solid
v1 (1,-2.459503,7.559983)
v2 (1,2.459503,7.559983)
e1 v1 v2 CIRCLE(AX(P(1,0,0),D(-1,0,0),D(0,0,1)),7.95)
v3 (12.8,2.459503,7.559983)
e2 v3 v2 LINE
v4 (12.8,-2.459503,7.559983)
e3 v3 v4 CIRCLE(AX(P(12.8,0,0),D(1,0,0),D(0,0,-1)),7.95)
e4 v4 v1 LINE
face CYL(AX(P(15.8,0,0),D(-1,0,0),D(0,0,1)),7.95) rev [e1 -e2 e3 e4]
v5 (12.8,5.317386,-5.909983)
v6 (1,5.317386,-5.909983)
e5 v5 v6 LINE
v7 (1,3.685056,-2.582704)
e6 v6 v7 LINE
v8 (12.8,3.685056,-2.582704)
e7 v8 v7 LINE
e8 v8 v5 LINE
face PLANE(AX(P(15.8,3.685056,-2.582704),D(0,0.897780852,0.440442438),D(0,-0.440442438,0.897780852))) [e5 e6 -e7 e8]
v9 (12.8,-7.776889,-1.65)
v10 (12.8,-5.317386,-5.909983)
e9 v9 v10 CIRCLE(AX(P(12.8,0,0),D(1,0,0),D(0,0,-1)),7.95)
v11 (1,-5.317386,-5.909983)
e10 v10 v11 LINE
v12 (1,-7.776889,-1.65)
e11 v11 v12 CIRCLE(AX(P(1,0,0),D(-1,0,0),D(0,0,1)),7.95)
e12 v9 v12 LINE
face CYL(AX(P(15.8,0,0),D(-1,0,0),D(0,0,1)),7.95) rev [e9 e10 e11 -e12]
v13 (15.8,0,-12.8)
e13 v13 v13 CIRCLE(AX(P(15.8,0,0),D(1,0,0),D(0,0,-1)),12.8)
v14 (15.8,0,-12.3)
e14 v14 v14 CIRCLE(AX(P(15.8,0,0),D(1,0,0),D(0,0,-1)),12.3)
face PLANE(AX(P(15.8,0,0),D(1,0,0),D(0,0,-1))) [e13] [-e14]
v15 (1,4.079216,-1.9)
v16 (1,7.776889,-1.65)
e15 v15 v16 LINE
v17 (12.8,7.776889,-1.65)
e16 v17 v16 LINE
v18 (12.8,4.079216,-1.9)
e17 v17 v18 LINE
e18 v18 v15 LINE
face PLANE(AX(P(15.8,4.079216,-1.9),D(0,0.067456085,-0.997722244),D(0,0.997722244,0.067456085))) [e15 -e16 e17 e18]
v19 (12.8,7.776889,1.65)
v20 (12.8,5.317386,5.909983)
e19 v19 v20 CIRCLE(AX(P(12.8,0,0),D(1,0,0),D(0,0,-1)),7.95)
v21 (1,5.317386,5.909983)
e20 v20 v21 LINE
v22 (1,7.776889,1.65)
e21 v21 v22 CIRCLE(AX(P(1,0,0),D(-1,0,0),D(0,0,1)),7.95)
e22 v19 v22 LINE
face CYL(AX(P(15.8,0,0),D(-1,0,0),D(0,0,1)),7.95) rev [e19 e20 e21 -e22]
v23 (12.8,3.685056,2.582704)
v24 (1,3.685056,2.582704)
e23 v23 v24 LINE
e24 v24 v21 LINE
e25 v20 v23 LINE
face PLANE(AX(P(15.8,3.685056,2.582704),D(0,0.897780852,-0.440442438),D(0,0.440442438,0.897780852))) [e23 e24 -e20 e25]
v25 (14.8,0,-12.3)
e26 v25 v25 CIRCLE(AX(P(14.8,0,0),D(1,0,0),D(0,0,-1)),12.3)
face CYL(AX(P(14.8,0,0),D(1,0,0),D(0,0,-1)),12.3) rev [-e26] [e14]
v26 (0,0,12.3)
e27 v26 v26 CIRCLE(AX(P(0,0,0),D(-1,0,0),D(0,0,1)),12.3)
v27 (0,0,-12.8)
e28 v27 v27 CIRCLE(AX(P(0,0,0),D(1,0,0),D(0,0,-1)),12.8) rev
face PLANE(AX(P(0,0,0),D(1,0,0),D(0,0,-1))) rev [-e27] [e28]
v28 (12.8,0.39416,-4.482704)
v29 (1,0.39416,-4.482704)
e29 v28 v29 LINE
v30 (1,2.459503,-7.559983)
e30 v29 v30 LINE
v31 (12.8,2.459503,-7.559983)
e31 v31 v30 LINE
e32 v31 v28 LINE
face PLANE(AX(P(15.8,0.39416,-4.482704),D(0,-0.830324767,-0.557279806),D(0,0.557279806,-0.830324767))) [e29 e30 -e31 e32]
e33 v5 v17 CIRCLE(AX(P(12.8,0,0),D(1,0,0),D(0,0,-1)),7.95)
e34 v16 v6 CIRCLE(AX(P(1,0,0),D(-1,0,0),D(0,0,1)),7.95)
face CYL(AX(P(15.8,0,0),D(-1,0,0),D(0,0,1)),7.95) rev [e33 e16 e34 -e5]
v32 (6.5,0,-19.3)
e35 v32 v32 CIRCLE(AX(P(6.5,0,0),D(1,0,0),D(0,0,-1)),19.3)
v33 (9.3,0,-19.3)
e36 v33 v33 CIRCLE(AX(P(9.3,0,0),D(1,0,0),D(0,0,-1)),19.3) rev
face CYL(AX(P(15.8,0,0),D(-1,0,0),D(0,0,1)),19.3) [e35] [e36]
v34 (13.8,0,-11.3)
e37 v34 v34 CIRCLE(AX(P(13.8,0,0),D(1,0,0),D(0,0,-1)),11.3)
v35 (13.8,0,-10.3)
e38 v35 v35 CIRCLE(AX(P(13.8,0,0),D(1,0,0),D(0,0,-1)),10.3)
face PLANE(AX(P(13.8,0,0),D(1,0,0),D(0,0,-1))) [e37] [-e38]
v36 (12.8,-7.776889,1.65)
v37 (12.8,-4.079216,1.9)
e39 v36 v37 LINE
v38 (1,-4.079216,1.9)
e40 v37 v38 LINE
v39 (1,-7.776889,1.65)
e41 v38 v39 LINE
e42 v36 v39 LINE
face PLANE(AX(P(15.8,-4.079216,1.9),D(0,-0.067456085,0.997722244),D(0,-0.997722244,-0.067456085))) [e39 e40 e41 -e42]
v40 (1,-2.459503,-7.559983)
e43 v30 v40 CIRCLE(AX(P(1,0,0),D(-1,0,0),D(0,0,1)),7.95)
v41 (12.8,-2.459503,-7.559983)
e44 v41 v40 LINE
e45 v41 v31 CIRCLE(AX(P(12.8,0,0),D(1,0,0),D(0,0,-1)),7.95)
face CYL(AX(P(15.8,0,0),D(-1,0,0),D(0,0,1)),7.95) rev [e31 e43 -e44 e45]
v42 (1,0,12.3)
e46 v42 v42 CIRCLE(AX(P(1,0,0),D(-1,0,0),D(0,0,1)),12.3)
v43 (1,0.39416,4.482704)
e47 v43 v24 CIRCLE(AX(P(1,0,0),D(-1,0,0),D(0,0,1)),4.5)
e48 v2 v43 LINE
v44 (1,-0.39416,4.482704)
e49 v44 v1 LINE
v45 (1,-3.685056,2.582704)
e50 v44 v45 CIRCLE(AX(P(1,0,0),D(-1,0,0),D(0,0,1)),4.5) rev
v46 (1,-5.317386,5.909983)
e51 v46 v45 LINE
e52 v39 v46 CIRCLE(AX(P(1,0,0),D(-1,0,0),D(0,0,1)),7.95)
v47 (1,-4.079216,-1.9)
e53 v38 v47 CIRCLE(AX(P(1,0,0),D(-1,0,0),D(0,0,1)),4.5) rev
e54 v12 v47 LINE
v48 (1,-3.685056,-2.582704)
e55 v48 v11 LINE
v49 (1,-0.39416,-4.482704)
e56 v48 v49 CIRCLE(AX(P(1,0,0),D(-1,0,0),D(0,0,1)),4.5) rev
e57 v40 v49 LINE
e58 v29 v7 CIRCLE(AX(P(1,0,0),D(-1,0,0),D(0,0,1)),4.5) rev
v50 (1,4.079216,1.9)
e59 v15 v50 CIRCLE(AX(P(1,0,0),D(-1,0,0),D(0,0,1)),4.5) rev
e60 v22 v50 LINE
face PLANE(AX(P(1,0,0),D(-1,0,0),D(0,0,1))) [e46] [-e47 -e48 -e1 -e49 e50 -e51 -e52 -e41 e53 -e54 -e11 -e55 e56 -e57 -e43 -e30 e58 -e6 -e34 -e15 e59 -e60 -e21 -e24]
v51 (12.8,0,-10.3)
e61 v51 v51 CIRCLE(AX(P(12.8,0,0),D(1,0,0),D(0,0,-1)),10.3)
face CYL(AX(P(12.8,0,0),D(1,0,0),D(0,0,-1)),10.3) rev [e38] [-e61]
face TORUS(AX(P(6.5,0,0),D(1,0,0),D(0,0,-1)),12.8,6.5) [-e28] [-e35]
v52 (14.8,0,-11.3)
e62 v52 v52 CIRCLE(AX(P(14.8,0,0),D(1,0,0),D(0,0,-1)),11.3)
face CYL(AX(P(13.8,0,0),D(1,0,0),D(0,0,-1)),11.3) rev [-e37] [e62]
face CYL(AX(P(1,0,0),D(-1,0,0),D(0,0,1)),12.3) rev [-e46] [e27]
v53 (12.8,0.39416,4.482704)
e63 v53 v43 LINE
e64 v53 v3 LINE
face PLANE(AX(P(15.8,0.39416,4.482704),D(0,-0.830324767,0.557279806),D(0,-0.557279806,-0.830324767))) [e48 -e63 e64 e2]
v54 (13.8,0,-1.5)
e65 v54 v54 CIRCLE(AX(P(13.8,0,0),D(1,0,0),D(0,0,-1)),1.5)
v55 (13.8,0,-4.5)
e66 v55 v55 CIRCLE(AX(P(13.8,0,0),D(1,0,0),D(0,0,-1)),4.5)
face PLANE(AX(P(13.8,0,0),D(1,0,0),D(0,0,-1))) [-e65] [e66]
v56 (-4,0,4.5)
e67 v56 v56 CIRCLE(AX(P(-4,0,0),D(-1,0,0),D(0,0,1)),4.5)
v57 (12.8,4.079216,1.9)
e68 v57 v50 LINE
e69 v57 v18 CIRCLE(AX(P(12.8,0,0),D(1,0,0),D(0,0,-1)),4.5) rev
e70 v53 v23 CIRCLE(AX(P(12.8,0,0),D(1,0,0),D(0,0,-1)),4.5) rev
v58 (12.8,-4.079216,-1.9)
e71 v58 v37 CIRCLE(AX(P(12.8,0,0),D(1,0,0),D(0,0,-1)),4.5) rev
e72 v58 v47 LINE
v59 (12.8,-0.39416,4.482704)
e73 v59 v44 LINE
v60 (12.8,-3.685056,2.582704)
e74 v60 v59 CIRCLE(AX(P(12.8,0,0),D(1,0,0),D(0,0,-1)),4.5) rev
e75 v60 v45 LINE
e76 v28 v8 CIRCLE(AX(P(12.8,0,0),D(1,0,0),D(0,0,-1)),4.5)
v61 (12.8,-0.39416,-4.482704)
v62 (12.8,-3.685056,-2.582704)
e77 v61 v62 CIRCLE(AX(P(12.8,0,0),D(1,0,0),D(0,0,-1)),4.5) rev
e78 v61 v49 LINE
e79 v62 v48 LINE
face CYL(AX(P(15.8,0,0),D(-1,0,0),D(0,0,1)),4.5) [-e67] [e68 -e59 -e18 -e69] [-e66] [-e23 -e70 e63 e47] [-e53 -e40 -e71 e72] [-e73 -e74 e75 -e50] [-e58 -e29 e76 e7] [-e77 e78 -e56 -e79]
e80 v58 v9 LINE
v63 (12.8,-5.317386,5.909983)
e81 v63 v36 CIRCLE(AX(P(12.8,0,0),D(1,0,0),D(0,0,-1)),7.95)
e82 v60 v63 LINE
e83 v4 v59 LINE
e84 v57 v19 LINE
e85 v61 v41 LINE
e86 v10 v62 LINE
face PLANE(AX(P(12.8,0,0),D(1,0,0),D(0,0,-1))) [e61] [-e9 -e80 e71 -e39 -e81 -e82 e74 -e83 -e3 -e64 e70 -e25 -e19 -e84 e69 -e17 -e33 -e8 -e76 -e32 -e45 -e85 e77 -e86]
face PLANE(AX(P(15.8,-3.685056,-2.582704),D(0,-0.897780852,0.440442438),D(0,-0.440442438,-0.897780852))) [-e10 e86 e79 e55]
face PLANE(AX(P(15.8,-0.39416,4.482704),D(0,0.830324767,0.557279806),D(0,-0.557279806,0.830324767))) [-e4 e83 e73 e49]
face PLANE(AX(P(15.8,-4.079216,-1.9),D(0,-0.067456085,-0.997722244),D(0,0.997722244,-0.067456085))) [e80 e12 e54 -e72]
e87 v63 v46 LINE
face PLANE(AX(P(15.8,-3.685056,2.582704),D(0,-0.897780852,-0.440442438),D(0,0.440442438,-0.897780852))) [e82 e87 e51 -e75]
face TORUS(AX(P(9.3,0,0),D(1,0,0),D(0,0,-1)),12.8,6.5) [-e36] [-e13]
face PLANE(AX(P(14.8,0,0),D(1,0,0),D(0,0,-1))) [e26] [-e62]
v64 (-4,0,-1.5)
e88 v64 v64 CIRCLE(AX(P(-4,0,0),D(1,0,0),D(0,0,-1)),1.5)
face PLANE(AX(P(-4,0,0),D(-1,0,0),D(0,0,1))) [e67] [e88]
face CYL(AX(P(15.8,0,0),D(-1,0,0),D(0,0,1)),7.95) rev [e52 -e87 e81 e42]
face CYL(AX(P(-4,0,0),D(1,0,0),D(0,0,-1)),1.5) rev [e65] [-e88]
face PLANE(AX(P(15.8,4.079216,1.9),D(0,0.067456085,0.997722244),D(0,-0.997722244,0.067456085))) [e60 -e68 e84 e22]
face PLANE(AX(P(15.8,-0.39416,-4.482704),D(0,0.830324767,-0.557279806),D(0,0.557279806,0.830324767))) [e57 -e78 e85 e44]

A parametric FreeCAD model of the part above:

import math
import FreeCAD as App
import Part
import Sketcher

V = App.Vector
Q = App.Units.Quantity


def edges_at(feature, points):
    """Names of the edges that pass closest to the given points."""
    edges = feature.Shape.Edges
    near = lambda p: min(range(len(edges)), key=lambda i: edges[i].distToShape(Part.Vertex(*p))[0])
    return sorted({f"Edge{near(p) + 1}" for p in points})

doc = App.newDocument("Part")
body = doc.addObject("PartDesign::Body", "Body")

sketch1 = body.newObject("Sketcher::SketchObject", "Sketch")
sketch1.AttachmentSupport = (doc.getObject("YZ_Plane"), [""])
sketch1.MapMode = "FlatFace"
sketch1.addGeometry([
    Part.Circle(V(0, 0, 0), V(0, 0, 1), 19.3),
    Part.ArcOfCircle(Part.Circle(V(0, 0, 0), V(0, 0, 1), 4.5), math.radians(144.97), math.radians(155.03)),
    Part.LineSegment(V(-4.1, 1.9, 0), V(-7.8, 1.6, 0)),
    Part.ArcOfCircle(Part.Circle(V(0, 0, 0), V(0, 0, 1), 7.9), math.radians(132), math.radians(168)),
    Part.LineSegment(V(-5.3, 5.9, 0), V(-3.7, 2.6, 0)),
    Part.ArcOfCircle(Part.Circle(V(0, 0, 0), V(0, 0, 1), 4.5), math.radians(-155.03), math.radians(-144.97)),
    Part.LineSegment(V(-3.7, -2.6, 0), V(-5.3, -5.9, 0)),
    Part.ArcOfCircle(Part.Circle(V(0, 0, 0), V(0, 0, 1), 7.9), math.radians(-168), math.radians(-132)),
    Part.LineSegment(V(-7.8, -1.6, 0), V(-4.1, -1.9, 0)),
    Part.ArcOfCircle(Part.Circle(V(0, 0, 0), V(0, 0, 1), 4.5), math.radians(84.97), math.radians(95.03)),
    Part.LineSegment(V(-0.4, 4.5, 0), V(-2.5, 7.6, 0)),
    Part.ArcOfCircle(Part.Circle(V(0, 0, 0), V(0, 0, 1), 7.9), math.radians(72), math.radians(108)),
    Part.LineSegment(V(2.5, 7.6, 0), V(0.4, 4.5, 0)),
    Part.LineSegment(V(7.8, 1.6, 0), V(4.1, 1.9, 0)),
    Part.ArcOfCircle(Part.Circle(V(0, 0, 0), V(0, 0, 1), 4.5), math.radians(24.97), math.radians(35.03)),
    Part.LineSegment(V(3.7, 2.6, 0), V(5.3, 5.9, 0)),
    Part.ArcOfCircle(Part.Circle(V(0, 0, 0), V(0, 0, 1), 7.9), math.radians(12), math.radians(48)),
    Part.ArcOfCircle(Part.Circle(V(0, 0, 0), V(0, 0, 1), 4.5), math.radians(-95.03), math.radians(-84.97)),
    Part.LineSegment(V(0.4, -4.5, 0), V(2.5, -7.6, 0)),
    Part.ArcOfCircle(Part.Circle(V(0, 0, 0), V(0, 0, 1), 7.9), math.radians(-108), math.radians(-72)),
    Part.LineSegment(V(-2.5, -7.6, 0), V(-0.4, -4.5, 0)),
    Part.ArcOfCircle(Part.Circle(V(0, 0, 0), V(0, 0, 1), 4.5), math.radians(-35.03), math.radians(-24.97)),
    Part.LineSegment(V(4.1, -1.9, 0), V(7.8, -1.6, 0)),
    Part.ArcOfCircle(Part.Circle(V(0, 0, 0), V(0, 0, 1), 7.9), math.radians(-48), math.radians(-12)),
    Part.LineSegment(V(5.3, -5.9, 0), V(3.7, -2.6, 0)),
], False)
sketch1.addConstraint([
    Sketcher.Constraint("Coincident", 1, 2, 2, 1),
    Sketcher.Constraint("Coincident", 2, 2, 3, 2),
    Sketcher.Constraint("Coincident", 3, 1, 4, 1),
    Sketcher.Constraint("Coincident", 4, 2, 1, 1),
    Sketcher.Constraint("Coincident", 5, 2, 6, 1),
    Sketcher.Constraint("Coincident", 6, 2, 7, 2),
    Sketcher.Constraint("Coincident", 7, 1, 8, 1),
    Sketcher.Constraint("Coincident", 8, 2, 5, 1),
    Sketcher.Constraint("Coincident", 9, 2, 10, 1),
    Sketcher.Constraint("Coincident", 10, 2, 11, 2),
    Sketcher.Constraint("Coincident", 11, 1, 12, 1),
    Sketcher.Constraint("Coincident", 12, 2, 9, 1),
    Sketcher.Constraint("Coincident", 13, 2, 14, 1),
    Sketcher.Constraint("Coincident", 14, 2, 15, 1),
    Sketcher.Constraint("Coincident", 15, 2, 16, 2),
    Sketcher.Constraint("Coincident", 16, 1, 13, 1),
    Sketcher.Constraint("Coincident", 17, 2, 18, 1),
    Sketcher.Constraint("Coincident", 18, 2, 19, 2),
    Sketcher.Constraint("Coincident", 19, 1, 20, 1),
    Sketcher.Constraint("Coincident", 20, 2, 17, 1),
    Sketcher.Constraint("Coincident", 21, 2, 22, 1),
    Sketcher.Constraint("Coincident", 22, 2, 23, 2),
    Sketcher.Constraint("Coincident", 23, 1, 24, 1),
    Sketcher.Constraint("Coincident", 24, 2, 21, 1),
    Sketcher.Constraint("Coincident", 0, 3, -1, 1),
    Sketcher.Constraint("Coincident", 1, 3, -1, 1),
    Sketcher.Constraint("Coincident", 3, 3, -1, 1),
    Sketcher.Constraint("Coincident", 5, 3, -1, 1),
    Sketcher.Constraint("Coincident", 7, 3, -1, 1),
    Sketcher.Constraint("Coincident", 9, 3, -1, 1),
    Sketcher.Constraint("Coincident", 11, 3, -1, 1),
    Sketcher.Constraint("Coincident", 14, 3, -1, 1),
    Sketcher.Constraint("Coincident", 16, 3, -1, 1),
    Sketcher.Constraint("Coincident", 17, 3, -1, 1),
    Sketcher.Constraint("Coincident", 19, 3, -1, 1),
    Sketcher.Constraint("Coincident", 21, 3, -1, 1),
    Sketcher.Constraint("Coincident", 23, 3, -1, 1),
    Sketcher.Constraint("Equal", 1, 5),
    Sketcher.Constraint("Equal", 3, 7),
    Sketcher.Constraint("Equal", 5, 9),
    Sketcher.Constraint("Equal", 7, 11),
    Sketcher.Constraint("Equal", 9, 14),
    Sketcher.Constraint("Equal", 11, 16),
    Sketcher.Constraint("Equal", 14, 17),
    Sketcher.Constraint("Equal", 16, 19),
    Sketcher.Constraint("Equal", 17, 21),
    Sketcher.Constraint("Equal", 19, 23),
    Sketcher.Constraint("Parallel", 8, 13),
    Sketcher.Constraint("Parallel", 6, 15),
    Sketcher.Constraint("Parallel", 10, 18),
    Sketcher.Constraint("Parallel", 12, 20),
    Sketcher.Constraint("Parallel", 2, 22),
    Sketcher.Constraint("Parallel", 4, 24),
    Sketcher.Constraint("Horizontal", 10, 2, 11, 1),
    Sketcher.Constraint("Horizontal", 9, 2, 12, 2),
    Sketcher.Constraint("Horizontal", 1, 2, 13, 2),
    Sketcher.Constraint("Horizontal", 4, 2, 14, 2),
    Sketcher.Constraint("Horizontal", 3, 1, 15, 2),
    Sketcher.Constraint("Horizontal", 2, 2, 16, 1),
    Sketcher.Constraint("Horizontal", 18, 2, 19, 1),
    Sketcher.Constraint("Horizontal", 8, 2, 21, 2),
    Sketcher.Constraint("Horizontal", 6, 2, 23, 1),
    Sketcher.Constraint("Vertical", 4, 2, 5, 2),
    Sketcher.Constraint("Vertical", 2, 2, 7, 1),
    Sketcher.Constraint("Vertical", 12, 2, 17, 2),
    Sketcher.Constraint("Equal", 2, 4),
    Sketcher.Constraint("Equal", 8, 10),
    Sketcher.Constraint("Diameter", 0, Q("38.6 mm")),
    Sketcher.Constraint("Radius", 1, Q("4.5 mm")),
    Sketcher.Constraint("Radius", 3, Q("7.95 mm")),
    Sketcher.Constraint("DistanceY", -1, 1, 1, 2, Q("1.9 mm")),
    Sketcher.Constraint("DistanceY", 7, 1, 2, 2, Q("3.3 mm")),
    Sketcher.Constraint("DistanceY", 4, 2, 9, 2, Q("1.9 mm")),
    Sketcher.Constraint("DistanceY", 3, 1, 10, 2, Q("1.65 mm")),
])
pad1 = body.newObject("PartDesign::Pad", "Pad")
pad1.Profile = sketch1
pad1.Length = 15.8

sketch2 = body.newObject("Sketcher::SketchObject", "Sketch001")
sketch2.AttachmentSupport = (doc.getObject("YZ_Plane"), [""])
sketch2.MapMode = "FlatFace"
sketch2.AttachmentOffset = App.Placement(V(0, 0, 15.8), App.Rotation())
sketch2.addGeometry(Part.Circle(V(0, 0, 0), V(0, 0, 1), 12), False)
sketch2.addConstraint([
    Sketcher.Constraint("Coincident", 0, 3, -1, 1),
    Sketcher.Constraint("Diameter", 0, Q("24.6 mm")),
])
pocket1 = body.newObject("PartDesign::Pocket", "Pocket")
pocket1.Profile = sketch2
pocket1.Length = 1

sketch3 = body.newObject("Sketcher::SketchObject", "Sketch002")
sketch3.AttachmentSupport = (doc.getObject("YZ_Plane"), [""])
sketch3.MapMode = "FlatFace"
sketch3.AttachmentOffset = App.Placement(V(0, 0, 14.8), App.Rotation())
sketch3.addGeometry(Part.Circle(V(0, 0, 0), V(0, 0, 1), 11), False)
sketch3.addConstraint([
    Sketcher.Constraint("Coincident", 0, 3, -1, 1),
    Sketcher.Constraint("Diameter", 0, Q("22.6 mm")),
])
pocket2 = body.newObject("PartDesign::Pocket", "Pocket001")
pocket2.Profile = sketch3
pocket2.Length = 1

sketch4 = body.newObject("Sketcher::SketchObject", "Sketch003")
sketch4.AttachmentSupport = (doc.getObject("YZ_Plane"), [""])
sketch4.MapMode = "FlatFace"
sketch4.AttachmentOffset = App.Placement(V(0, 0, 13.8), App.Rotation())
sketch4.addGeometry(Part.Circle(V(0, 0, 0), V(0, 0, 1), 10), False)
sketch4.addConstraint([
    Sketcher.Constraint("Coincident", 0, 3, -1, 1),
    Sketcher.Constraint("Diameter", 0, Q("20.6 mm")),
])
pocket3 = body.newObject("PartDesign::Pocket", "Pocket002")
pocket3.Profile = sketch4
pocket3.Length = 1

sketch5 = body.newObject("Sketcher::SketchObject", "Sketch004")
sketch5.AttachmentSupport = (doc.getObject("YZ_Plane"), [""])
sketch5.MapMode = "FlatFace"
sketch5.addGeometry(Part.Circle(V(0, 0, 0), V(0, 0, 1), 12), False)
sketch5.addConstraint([
    Sketcher.Constraint("Coincident", 0, 3, -1, 1),
    Sketcher.Constraint("Diameter", 0, Q("24.6 mm")),
])
pocket4 = body.newObject("PartDesign::Pocket", "Pocket003")
pocket4.Profile = sketch5
pocket4.Length = 1
pocket4.Reversed = True

sketch6 = body.newObject("Sketcher::SketchObject", "Sketch005")
sketch6.AttachmentSupport = (doc.getObject("YZ_Plane"), [""])
sketch6.MapMode = "FlatFace"
sketch6.AttachmentOffset = App.Placement(V(0, 0, 1), App.Rotation())
sketch6.addGeometry(Part.Circle(V(0, 0, 0), V(0, 0, 1), 4.5), False)
sketch6.addConstraint([
    Sketcher.Constraint("Coincident", 0, 3, -1, 1),
    Sketcher.Constraint("Diameter", 0, Q("9 mm")),
])
pad2 = body.newObject("PartDesign::Pad", "Pad001")
pad2.Profile = sketch6
pad2.Length = 5
pad2.Reversed = True

sketch7 = body.newObject("Sketcher::SketchObject", "Sketch006")
sketch7.AttachmentSupport = (doc.getObject("YZ_Plane"), [""])
sketch7.MapMode = "FlatFace"
sketch7.AttachmentOffset = App.Placement(V(0, 0, 12.8), App.Rotation())
sketch7.addGeometry(Part.Circle(V(0, 0, 0), V(0, 0, 1), 4.5), False)
sketch7.addConstraint([
    Sketcher.Constraint("Coincident", 0, 3, -1, 1),
    Sketcher.Constraint("Diameter", 0, Q("9 mm")),
])
pad3 = body.newObject("PartDesign::Pad", "Pad002")
pad3.Profile = sketch7
pad3.Length = 1

sketch8 = body.newObject("Sketcher::SketchObject", "Sketch007")
sketch8.AttachmentSupport = (doc.getObject("YZ_Plane"), [""])
sketch8.MapMode = "FlatFace"
sketch8.AttachmentOffset = App.Placement(V(0, 0, 13.8), App.Rotation())
sketch8.addGeometry(Part.Circle(V(0, 0, 0), V(0, 0, 1), 1.5), False)
sketch8.addConstraint([
    Sketcher.Constraint("Coincident", 0, 3, -1, 1),
    Sketcher.Constraint("Diameter", 0, Q("3 mm")),
])
pocket5 = body.newObject("PartDesign::Pocket", "Pocket004")
pocket5.Profile = sketch8
pocket5.Type = "ThroughAll"
doc.recompute()

fillet = body.newObject("PartDesign::Fillet", "Fillet")
fillet.Base = (pocket5, edges_at(pocket5, [(0, 0, 19.3), (15.8, 0, 19.3)]))
fillet.Radius = 6.5

doc.recompute()
